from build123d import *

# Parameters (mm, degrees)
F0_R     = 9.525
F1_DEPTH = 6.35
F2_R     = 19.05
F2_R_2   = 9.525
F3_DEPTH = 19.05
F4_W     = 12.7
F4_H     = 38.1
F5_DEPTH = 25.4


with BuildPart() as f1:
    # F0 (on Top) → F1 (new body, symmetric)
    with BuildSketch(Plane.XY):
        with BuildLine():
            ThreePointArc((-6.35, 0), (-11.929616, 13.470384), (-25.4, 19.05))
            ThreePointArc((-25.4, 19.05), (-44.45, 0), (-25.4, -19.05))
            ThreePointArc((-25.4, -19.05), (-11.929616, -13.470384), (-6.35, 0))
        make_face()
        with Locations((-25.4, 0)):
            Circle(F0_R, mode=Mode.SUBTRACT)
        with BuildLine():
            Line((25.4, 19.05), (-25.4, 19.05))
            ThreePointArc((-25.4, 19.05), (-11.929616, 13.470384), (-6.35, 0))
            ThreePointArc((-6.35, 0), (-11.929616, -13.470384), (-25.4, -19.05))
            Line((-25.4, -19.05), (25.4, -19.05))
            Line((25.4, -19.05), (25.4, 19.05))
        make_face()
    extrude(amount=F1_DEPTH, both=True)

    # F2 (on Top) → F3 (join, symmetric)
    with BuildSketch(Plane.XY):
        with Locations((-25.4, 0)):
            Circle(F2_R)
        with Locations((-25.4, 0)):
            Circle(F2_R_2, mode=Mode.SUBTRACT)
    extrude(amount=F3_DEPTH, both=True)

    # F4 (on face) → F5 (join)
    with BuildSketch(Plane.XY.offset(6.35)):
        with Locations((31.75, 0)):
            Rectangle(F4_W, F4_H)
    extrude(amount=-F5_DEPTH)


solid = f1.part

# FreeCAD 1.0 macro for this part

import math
import FreeCAD as App
import Part
import Sketcher
Q = App.Units.Quantity

doc = App.newDocument("Part")
body = doc.addObject("PartDesign::Body", "Body")

sketch1 = body.newObject("Sketcher::SketchObject", "Sketch")
sketch1.AttachmentSupport = (doc.getObject("XY_Plane"), [""])
sketch1.MapMode = "FlatFace"
sketch1.addGeometry([
    Part.ArcOfCircle(Part.Circle(App.Vector(-25, 0, 0), App.Vector(0, 0, 1), 19), math.radians(90), math.radians(270)),
    Part.LineSegment(App.Vector(-25, -19, 0), App.Vector(25, -19, 0)),
    Part.LineSegment(App.Vector(25, -19, 0), App.Vector(25, 19, 0)),
    Part.LineSegment(App.Vector(25, 19, 0), App.Vector(-25, 19, 0)),
    Part.Circle(App.Vector(-25, 0, 0), App.Vector(0, 0, 1), 10),
], False)
sketch1.addConstraint([
    Sketcher.Constraint("Tangent", 0, 2, 1, 1),
    Sketcher.Constraint("Coincident", 1, 2, 2, 1),
    Sketcher.Constraint("Coincident", 2, 2, 3, 1),
    Sketcher.Constraint("Tangent", 3, 2, 0, 1),
    Sketcher.Constraint("Horizontal", 1),
    Sketcher.Constraint("Vertical", 2),
    Sketcher.Constraint("Horizontal", 3),
    Sketcher.Constraint("Coincident", 4, 3, 0, 3),
    Sketcher.Constraint("Symmetric", 0, 2, 2, 2, -1, 1),
    Sketcher.Constraint("Diameter", 4, Q("0.75 in")),
    Sketcher.Constraint("DistanceX", 1, 1, 1, 2, Q("2 in")),
    Sketcher.Constraint("Radius", 0, Q("0.75 in")),
])
pad1 = body.newObject("PartDesign::Pad", "Pad")
pad1.Profile = sketch1
pad1.Length = Q("0.5 in")
pad1.Midplane = True

sketch2 = body.newObject("Sketcher::SketchObject", "Sketch001")
sketch2.AttachmentSupport = (doc.getObject("XY_Plane"), [""])
sketch2.MapMode = "FlatFace"
sketch2.addGeometry([
    Part.Circle(App.Vector(-25, 0, 0), App.Vector(0, 0, 1), 19),
    Part.Circle(App.Vector(-25, 0, 0), App.Vector(0, 0, 1), 10),
], False)
sketch2.addConstraint([
    Sketcher.Constraint("Coincident", 1, 3, 0, 3),
    Sketcher.Constraint("PointOnObject", 0, 3, -1),
    Sketcher.Constraint("Diameter", 0, Q("1.5 in")),
    Sketcher.Constraint("Diameter", 1, Q("0.75 in")),
    Sketcher.Constraint("DistanceX", 0, 3, -1, 1, Q("1 in")),
])
pad2 = body.newObject("PartDesign::Pad", "Pad001")
pad2.Profile = sketch2
pad2.Length = Q("1.5 in")
pad2.Midplane = True

sketch3 = body.newObject("Sketcher::SketchObject", "Sketch002")
sketch3.AttachmentSupport = (doc.getObject("XY_Plane"), [""])
sketch3.MapMode = "FlatFace"
sketch3.AttachmentOffset = App.Placement(App.Vector(0, 0, 0.25 * 25.4), App.Rotation())
sketch3.addGeometry([
    Part.LineSegment(App.Vector(25, 19, 0), App.Vector(25, -19, 0)),
    Part.LineSegment(App.Vector(25, -19, 0), App.Vector(38, -19, 0)),
    Part.LineSegment(App.Vector(38, -19, 0), App.Vector(38, 19, 0)),
    Part.LineSegment(App.Vector(38, 19, 0), App.Vector(25, 19, 0)),
], False)
sketch3.addConstraint([
    Sketcher.Constraint("Coincident", 0, 2, 1, 1),
    Sketcher.Constraint("Coincident", 1, 2, 2, 1),
    Sketcher.Constraint("Coincident", 2, 2, 3, 1),
    Sketcher.Constraint("Coincident", 3, 2, 0, 1),
    Sketcher.Constraint("Vertical", 0),
    Sketcher.Constraint("Horizontal", 1),
    Sketcher.Constraint("Vertical", 2),
    Sketcher.Constraint("Horizontal", 3),
    Sketcher.Constraint("DistanceX", 1, 1, 1, 2, Q("0.5 in")),
    Sketcher.Constraint("DistanceY", 0, 2, 0, 1, Q("1.5 in")),
    Sketcher.Constraint("DistanceX", -1, 1, 0, 2, Q("1 in")),
    Sketcher.Constraint("DistanceY", 0, 2, -1, 1, Q("0.75 in")),
])
pad3 = body.newObject("PartDesign::Pad", "Pad002")
pad3.Profile = sketch3
pad3.Length = Q("1 in")
pad3.Reversed = True

doc.recompute()
